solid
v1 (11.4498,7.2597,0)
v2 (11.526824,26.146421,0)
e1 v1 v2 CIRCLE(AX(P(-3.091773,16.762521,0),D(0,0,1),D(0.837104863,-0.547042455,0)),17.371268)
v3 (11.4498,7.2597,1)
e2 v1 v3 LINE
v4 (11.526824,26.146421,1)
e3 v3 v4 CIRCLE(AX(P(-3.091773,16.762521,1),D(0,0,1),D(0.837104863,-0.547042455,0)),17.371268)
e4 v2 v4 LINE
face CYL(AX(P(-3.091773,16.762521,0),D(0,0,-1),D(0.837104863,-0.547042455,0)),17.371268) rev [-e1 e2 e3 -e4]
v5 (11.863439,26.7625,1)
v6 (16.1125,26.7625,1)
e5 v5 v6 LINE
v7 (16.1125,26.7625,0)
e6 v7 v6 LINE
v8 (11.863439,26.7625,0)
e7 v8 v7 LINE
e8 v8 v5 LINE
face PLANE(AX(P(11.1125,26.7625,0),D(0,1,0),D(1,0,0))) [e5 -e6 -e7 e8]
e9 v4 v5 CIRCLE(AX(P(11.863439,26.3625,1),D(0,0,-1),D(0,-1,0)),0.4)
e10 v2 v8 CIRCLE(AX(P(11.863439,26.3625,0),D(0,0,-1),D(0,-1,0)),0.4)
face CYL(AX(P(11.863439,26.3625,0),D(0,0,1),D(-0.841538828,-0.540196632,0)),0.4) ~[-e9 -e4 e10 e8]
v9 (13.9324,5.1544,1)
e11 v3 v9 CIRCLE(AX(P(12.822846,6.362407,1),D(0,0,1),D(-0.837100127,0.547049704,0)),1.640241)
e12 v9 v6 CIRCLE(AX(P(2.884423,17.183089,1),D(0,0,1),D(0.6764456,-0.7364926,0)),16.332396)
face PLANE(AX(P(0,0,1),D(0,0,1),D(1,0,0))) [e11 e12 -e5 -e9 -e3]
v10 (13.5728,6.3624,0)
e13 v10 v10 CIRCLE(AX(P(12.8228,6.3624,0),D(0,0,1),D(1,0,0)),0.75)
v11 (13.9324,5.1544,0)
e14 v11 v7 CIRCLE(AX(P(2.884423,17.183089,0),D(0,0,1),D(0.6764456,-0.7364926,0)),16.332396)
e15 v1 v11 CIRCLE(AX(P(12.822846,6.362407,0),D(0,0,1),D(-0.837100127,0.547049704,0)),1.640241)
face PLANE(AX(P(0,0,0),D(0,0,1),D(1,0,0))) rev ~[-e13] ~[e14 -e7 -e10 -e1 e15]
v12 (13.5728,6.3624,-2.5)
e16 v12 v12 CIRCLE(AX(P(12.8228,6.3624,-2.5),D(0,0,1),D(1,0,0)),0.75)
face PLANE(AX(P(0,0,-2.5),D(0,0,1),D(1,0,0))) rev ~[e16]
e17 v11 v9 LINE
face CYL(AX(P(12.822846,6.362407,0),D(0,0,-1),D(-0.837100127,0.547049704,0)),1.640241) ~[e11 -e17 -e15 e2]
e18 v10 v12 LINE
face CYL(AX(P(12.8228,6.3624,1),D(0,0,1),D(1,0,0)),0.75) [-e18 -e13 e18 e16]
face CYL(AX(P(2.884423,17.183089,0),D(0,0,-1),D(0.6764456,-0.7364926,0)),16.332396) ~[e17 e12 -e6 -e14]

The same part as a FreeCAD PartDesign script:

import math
import FreeCAD as App
import Part
import Sketcher

V = App.Vector


def edges_at(feature, points):
    """Names of the edges that pass closest to the given points."""
    edges = feature.Shape.Edges
    near = lambda p: min(range(len(edges)), key=lambda i: edges[i].distToShape(Part.Vertex(*p))[0])
    return sorted({f"Edge{near(p) + 1}" for p in points})

doc = App.newDocument("Part")
body = doc.addObject("PartDesign::Body", "Body")

# Sketch on XY plane
sketch1 = body.newObject("Sketcher::SketchObject", "Sketch")
sketch1.AttachmentSupport = (doc.getObject("XY_Plane"), [""])
sketch1.MapMode = "FlatFace"
sketch1.addGeometry(Part.ArcOfCircle(Part.Circle(V(-3.1, 16.8, 0), V(0, 0, 1), 17.4), math.radians(-33), math.radians(35)), False)
sketch1.addGeometry(Part.ArcOfCircle(Part.Circle(V(12.8, 6.4, 0), V(0, 0, 1), 1.6), math.radians(147), math.radians(313)), False)
sketch1.addGeometry(Part.ArcOfCircle(Part.Circle(V(2.9, 17.2, 0), V(0, 0, 1), 16.3), math.radians(-47), math.radians(36)), False)
sketch1.addGeometry(Part.LineSegment(V(16.1, 26.8, 0), V(11.1, 26.8, 0)), False)
sketch1.addConstraint(Sketcher.Constraint("Tangent", 0, 1, 1, 1))
sketch1.addConstraint(Sketcher.Constraint("Tangent", 1, 2, 2, 1))
sketch1.addConstraint(Sketcher.Constraint("Coincident", 2, 2, 3, 1))
sketch1.addConstraint(Sketcher.Constraint("Coincident", 3, 2, 0, 2))
sketch1.addConstraint(Sketcher.Constraint("Horizontal", 3))
sketch1.addConstraint(Sketcher.Constraint("DistanceX", 3, 2, 3, 1, 5.0))
sketch1.addConstraint(Sketcher.Constraint("DistanceY", 0, 3, 2, 2, 10.0))
sketch1.addConstraint(Sketcher.Constraint("Radius", 0, 17.3712))
sketch1.addConstraint(Sketcher.Constraint("Radius", 1, 1.6402))
sketch1.addConstraint(Sketcher.Constraint("Radius", 2, 16.3324))
sketch1.addConstraint(Sketcher.Constraint("DistanceY", 1, 3, 0, 3, 10.4))
sketch1.addConstraint(Sketcher.Constraint("DistanceY", -1, 1, 2, 3, 17.183))
sketch1.addConstraint(Sketcher.Constraint("DistanceX", 0, 3, -1, 1, 3.0917))
pad1 = body.newObject("PartDesign::Pad", "Pad")
pad1.Profile = sketch1
pad1.Length = 1

# Sketch on XY plane
sketch2 = body.newObject("Sketcher::SketchObject", "Sketch001")
sketch2.AttachmentSupport = (doc.getObject("XY_Plane"), [""])
sketch2.MapMode = "FlatFace"
sketch2.AttachmentOffset = App.Placement(V(0, 0, 1), App.Rotation())
sketch2.addGeometry(Part.Circle(V(12.8, 6.4, 0), V(0, 0, 1), 0.8), False)
sketch2.addConstraint(Sketcher.Constraint("Diameter", 0, 1.5))
sketch2.addConstraint(Sketcher.Constraint("DistanceX", -1, 1, 0, 3, 12.8228))
sketch2.addConstraint(Sketcher.Constraint("DistanceY", -1, 1, 0, 3, 6.3624))
pad2 = body.newObject("PartDesign::Pad", "Pad001")
pad2.Profile = sketch2
pad2.Length = 3.5
pad2.Reversed = True
doc.recompute()

fillet = body.newObject("PartDesign::Fillet", "Fillet")
fillet.Base = (pad2, edges_at(pad2, [(11.113, 26.762, 0.5)]))
fillet.Radius = 0.4

doc.recompute()
